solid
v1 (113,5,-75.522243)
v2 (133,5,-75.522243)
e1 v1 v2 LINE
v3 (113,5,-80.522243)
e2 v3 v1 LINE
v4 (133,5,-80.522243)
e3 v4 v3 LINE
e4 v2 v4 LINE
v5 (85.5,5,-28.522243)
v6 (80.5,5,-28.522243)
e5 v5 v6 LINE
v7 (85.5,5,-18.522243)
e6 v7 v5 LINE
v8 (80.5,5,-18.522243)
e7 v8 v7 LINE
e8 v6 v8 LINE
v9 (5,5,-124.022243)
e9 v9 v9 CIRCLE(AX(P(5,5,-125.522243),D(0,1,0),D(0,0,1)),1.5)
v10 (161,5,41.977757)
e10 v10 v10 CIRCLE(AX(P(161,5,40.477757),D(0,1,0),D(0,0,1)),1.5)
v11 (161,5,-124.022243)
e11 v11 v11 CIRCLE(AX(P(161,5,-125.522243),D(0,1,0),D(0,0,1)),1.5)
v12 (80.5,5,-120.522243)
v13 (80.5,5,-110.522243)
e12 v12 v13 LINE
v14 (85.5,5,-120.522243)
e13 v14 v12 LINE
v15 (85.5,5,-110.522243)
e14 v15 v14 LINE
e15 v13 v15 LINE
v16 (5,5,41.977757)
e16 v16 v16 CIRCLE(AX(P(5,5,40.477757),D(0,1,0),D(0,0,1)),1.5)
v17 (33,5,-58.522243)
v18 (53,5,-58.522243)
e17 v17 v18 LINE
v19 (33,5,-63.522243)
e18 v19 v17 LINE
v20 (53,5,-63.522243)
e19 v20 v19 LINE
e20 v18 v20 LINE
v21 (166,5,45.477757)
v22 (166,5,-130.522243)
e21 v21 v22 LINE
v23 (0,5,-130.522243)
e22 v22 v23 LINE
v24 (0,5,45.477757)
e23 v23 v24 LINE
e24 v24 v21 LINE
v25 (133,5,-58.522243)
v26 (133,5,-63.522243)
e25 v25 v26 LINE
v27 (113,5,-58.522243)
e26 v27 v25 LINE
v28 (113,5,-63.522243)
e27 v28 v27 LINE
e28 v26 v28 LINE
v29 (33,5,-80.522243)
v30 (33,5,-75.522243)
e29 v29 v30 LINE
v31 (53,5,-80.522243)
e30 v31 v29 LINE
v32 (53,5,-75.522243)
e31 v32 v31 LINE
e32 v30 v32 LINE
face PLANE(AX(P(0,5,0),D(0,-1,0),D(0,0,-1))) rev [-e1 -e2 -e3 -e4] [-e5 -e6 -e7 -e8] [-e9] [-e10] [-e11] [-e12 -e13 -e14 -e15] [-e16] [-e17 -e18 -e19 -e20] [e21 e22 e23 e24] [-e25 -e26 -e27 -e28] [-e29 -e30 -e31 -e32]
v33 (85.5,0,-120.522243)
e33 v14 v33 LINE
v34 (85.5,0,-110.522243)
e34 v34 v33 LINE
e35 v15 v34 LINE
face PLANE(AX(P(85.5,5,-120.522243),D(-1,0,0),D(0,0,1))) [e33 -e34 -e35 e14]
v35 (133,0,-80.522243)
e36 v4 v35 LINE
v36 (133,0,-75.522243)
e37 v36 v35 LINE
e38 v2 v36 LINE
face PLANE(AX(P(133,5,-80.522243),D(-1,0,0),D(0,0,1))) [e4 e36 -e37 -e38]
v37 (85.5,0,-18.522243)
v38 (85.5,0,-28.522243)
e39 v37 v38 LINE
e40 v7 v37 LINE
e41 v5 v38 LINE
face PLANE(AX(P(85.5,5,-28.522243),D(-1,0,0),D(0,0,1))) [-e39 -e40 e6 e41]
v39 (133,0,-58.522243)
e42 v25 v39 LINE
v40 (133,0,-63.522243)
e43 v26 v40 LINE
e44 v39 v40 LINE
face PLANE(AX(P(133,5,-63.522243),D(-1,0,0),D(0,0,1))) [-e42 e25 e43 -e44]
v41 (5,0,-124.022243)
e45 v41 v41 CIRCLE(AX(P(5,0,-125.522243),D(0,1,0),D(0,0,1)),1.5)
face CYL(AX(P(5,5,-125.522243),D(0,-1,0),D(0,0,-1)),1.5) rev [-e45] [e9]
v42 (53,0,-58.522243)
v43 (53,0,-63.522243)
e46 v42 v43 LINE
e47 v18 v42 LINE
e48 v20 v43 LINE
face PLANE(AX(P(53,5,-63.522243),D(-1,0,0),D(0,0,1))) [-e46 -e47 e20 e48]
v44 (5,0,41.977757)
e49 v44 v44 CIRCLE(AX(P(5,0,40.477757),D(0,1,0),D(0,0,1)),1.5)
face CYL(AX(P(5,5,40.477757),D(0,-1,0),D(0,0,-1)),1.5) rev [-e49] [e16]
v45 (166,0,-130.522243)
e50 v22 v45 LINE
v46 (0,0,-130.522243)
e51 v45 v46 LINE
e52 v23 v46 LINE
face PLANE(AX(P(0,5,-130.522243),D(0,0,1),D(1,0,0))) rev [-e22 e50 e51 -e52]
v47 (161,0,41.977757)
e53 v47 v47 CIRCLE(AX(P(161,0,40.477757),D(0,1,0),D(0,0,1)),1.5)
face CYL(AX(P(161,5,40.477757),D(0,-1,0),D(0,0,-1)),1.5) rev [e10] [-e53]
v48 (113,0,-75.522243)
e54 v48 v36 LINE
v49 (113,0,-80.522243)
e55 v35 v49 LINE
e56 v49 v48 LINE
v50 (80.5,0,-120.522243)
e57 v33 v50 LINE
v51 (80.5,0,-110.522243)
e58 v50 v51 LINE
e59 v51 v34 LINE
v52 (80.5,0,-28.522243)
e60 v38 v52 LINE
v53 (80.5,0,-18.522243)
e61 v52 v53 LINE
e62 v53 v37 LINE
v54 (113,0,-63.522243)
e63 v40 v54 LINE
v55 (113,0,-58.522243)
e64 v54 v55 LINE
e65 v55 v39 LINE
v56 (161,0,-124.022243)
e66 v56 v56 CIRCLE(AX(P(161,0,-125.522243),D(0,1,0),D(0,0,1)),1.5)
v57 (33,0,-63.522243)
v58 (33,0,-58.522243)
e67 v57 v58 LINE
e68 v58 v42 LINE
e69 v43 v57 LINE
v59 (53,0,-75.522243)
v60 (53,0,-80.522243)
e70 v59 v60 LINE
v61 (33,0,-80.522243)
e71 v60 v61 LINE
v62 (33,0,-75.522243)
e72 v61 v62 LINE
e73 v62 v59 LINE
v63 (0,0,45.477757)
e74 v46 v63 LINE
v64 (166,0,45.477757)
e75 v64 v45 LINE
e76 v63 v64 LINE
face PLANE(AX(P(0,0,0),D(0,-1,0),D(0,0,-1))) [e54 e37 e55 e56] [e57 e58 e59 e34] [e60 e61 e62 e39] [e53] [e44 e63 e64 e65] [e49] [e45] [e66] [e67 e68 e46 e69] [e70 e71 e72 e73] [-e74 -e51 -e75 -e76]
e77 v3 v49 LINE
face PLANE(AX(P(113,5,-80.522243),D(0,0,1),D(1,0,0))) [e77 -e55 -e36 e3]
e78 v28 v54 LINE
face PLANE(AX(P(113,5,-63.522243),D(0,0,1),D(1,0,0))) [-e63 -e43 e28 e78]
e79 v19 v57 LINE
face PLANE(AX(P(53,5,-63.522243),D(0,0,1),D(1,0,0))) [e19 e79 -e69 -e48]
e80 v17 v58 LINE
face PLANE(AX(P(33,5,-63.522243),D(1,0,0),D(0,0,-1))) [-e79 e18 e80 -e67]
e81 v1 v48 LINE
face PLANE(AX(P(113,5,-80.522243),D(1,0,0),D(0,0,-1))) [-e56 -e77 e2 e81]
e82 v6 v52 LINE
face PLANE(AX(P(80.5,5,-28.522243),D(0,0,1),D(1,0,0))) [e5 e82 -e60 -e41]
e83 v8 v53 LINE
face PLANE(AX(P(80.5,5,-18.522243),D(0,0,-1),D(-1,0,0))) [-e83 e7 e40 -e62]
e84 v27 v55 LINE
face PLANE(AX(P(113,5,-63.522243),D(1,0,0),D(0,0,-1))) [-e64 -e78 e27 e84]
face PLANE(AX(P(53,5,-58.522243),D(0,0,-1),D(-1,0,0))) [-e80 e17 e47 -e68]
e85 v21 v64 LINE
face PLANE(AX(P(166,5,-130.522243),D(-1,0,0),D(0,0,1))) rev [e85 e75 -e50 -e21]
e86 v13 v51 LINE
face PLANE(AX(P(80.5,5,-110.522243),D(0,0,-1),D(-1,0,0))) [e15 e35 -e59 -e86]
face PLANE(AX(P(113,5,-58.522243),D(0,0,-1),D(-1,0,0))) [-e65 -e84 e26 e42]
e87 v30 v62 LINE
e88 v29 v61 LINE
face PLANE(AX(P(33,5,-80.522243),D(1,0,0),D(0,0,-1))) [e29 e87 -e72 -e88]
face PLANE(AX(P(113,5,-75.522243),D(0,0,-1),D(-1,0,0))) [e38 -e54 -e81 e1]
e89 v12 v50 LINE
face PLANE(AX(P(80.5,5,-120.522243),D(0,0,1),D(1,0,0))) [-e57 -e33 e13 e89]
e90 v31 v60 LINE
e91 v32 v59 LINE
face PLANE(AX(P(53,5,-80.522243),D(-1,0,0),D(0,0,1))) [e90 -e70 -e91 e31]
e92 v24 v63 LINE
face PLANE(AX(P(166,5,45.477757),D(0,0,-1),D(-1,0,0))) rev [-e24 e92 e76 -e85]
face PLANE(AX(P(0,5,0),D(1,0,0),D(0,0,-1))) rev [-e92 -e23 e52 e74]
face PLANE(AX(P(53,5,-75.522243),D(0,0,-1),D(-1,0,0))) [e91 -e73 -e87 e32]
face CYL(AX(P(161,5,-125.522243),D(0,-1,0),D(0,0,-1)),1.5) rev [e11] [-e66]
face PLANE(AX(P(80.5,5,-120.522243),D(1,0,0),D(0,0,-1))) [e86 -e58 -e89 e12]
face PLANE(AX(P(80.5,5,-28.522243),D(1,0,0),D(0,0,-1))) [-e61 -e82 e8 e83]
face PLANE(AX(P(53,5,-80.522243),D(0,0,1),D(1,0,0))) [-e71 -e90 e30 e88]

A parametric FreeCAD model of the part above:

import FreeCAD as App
import Part
import Sketcher

V = App.Vector
Q = App.Units.Quantity


def add_polygon(sketch, points):
    """Adds a closed chain of lines whose ends are joined by coincident constraints."""
    first, n = sketch.GeometryCount, len(points)
    for a, b in zip(points, points[1:] + points[:1]):
        sketch.addGeometry(Part.LineSegment(App.Vector(*a, 0), App.Vector(*b, 0)), False)
    for i in range(n):
        sketch.addConstraint(Sketcher.Constraint("Coincident", first + i, 2, first + (i + 1) % n, 1))

doc = App.newDocument("Part")
body = doc.addObject("PartDesign::Body", "Body")

sketch1 = body.newObject("Sketcher::SketchObject", "Sketch")
sketch1.AttachmentSupport = (doc.getObject("XZ_Plane"), [""])
sketch1.MapMode = "FlatFace"
add_polygon(sketch1, [(0, -130.5), (0, 45.5), (166, 45.5), (166, -130.5)])
sketch1.addGeometry(Part.Circle(V(161, 40.5, 0), V(0, 0, 1), 1.5), False)
sketch1.addGeometry(Part.Circle(V(5, 40.5, 0), V(0, 0, 1), 1.5), False)
add_polygon(sketch1, [(80.5, -18.5), (80.5, -28.5), (85.5, -28.5), (85.5, -18.5)])
add_polygon(sketch1, [(113, -58.5), (113, -63.5), (133, -63.5), (133, -58.5)])
add_polygon(sketch1, [(113, -75.5), (113, -80.5), (133, -80.5), (133, -75.5)])
sketch1.addGeometry(Part.Circle(V(161, -125.5, 0), V(0, 0, 1), 1.5), False)
add_polygon(sketch1, [(33, -58.5), (33, -63.5), (53, -63.5), (53, -58.5)])
add_polygon(sketch1, [(33, -75.5), (33, -80.5), (53, -80.5), (53, -75.5)])
add_polygon(sketch1, [(80.5, -110.5), (80.5, -120.5), (85.5, -120.5), (85.5, -110.5)])
sketch1.addGeometry(Part.Circle(V(5, -125.5, 0), V(0, 0, 1), 1.5), False)
sketch1.addConstraint(Sketcher.Constraint("Vertical", 0))
sketch1.addConstraint(Sketcher.Constraint("Horizontal", 1))
sketch1.addConstraint(Sketcher.Constraint("Vertical", 2))
sketch1.addConstraint(Sketcher.Constraint("Horizontal", 3))
sketch1.addConstraint(Sketcher.Constraint("Vertical", 6))
sketch1.addConstraint(Sketcher.Constraint("Horizontal", 7))
sketch1.addConstraint(Sketcher.Constraint("Vertical", 8))
sketch1.addConstraint(Sketcher.Constraint("Horizontal", 9))
sketch1.addConstraint(Sketcher.Constraint("Vertical", 10))
sketch1.addConstraint(Sketcher.Constraint("Horizontal", 11))
sketch1.addConstraint(Sketcher.Constraint("Vertical", 12))
sketch1.addConstraint(Sketcher.Constraint("Horizontal", 13))
sketch1.addConstraint(Sketcher.Constraint("Vertical", 14))
sketch1.addConstraint(Sketcher.Constraint("Horizontal", 15))
sketch1.addConstraint(Sketcher.Constraint("Vertical", 16))
sketch1.addConstraint(Sketcher.Constraint("Horizontal", 17))
sketch1.addConstraint(Sketcher.Constraint("Vertical", 19))
sketch1.addConstraint(Sketcher.Constraint("Horizontal", 20))
sketch1.addConstraint(Sketcher.Constraint("Vertical", 21))
sketch1.addConstraint(Sketcher.Constraint("Horizontal", 22))
sketch1.addConstraint(Sketcher.Constraint("Vertical", 23))
sketch1.addConstraint(Sketcher.Constraint("Horizontal", 24))
sketch1.addConstraint(Sketcher.Constraint("Vertical", 25))
sketch1.addConstraint(Sketcher.Constraint("Horizontal", 26))
sketch1.addConstraint(Sketcher.Constraint("Vertical", 27))
sketch1.addConstraint(Sketcher.Constraint("Horizontal", 28))
sketch1.addConstraint(Sketcher.Constraint("Vertical", 29))
sketch1.addConstraint(Sketcher.Constraint("Horizontal", 30))
sketch1.addConstraint(Sketcher.Constraint("Equal", 4, 5))
sketch1.addConstraint(Sketcher.Constraint("Equal", 5, 18))
sketch1.addConstraint(Sketcher.Constraint("Equal", 18, 31))
sketch1.addConstraint(Sketcher.Constraint("PointOnObject", 0, 2, -2))
sketch1.addConstraint(Sketcher.Constraint("Horizontal", 4, 3, 5, 3))
sketch1.addConstraint(Sketcher.Constraint("Horizontal", 18, 3, 31, 3))
sketch1.addConstraint(Sketcher.Constraint("Horizontal", 11, 2, 19, 2))
sketch1.addConstraint(Sketcher.Constraint("Horizontal", 13, 2, 21, 2))
sketch1.addConstraint(Sketcher.Constraint("Horizontal", 15, 2, 23, 2))
sketch1.addConstraint(Sketcher.Constraint("Horizontal", 17, 2, 25, 2))
sketch1.addConstraint(Sketcher.Constraint("Vertical", 4, 3, 18, 3))
sketch1.addConstraint(Sketcher.Constraint("Vertical", 5, 3, 31, 3))
sketch1.addConstraint(Sketcher.Constraint("Vertical", 13, 2, 14, 2))
sketch1.addConstraint(Sketcher.Constraint("Vertical", 12, 2, 15, 2))
sketch1.addConstraint(Sketcher.Constraint("Vertical", 22, 2, 23, 2))
sketch1.addConstraint(Sketcher.Constraint("Vertical", 21, 2, 24, 2))
sketch1.addConstraint(Sketcher.Constraint("Vertical", 9, 2, 27, 2))
sketch1.addConstraint(Sketcher.Constraint("Vertical", 8, 2, 28, 2))
sketch1.addConstraint(Sketcher.Constraint("Equal", 17, 20))
sketch1.addConstraint(Sketcher.Constraint("Equal", 30, 10))
sketch1.addConstraint(Sketcher.Constraint("Equal", 12, 14))
sketch1.addConstraint(Sketcher.Constraint("Equal", 8, 27))
sketch1.addConstraint(Sketcher.Constraint("Diameter", 4, Q("3 mm")))
sketch1.addConstraint(Sketcher.Constraint("DistanceX", 1, 1, 1, 2, Q("166 mm")))
sketch1.addConstraint(Sketcher.Constraint("DistanceX", 7, 1, 7, 2, Q("5 mm")))
sketch1.addConstraint(Sketcher.Constraint("DistanceX", 11, 1, 11, 2, Q("20 mm")))
sketch1.addConstraint(Sketcher.Constraint("DistanceY", 0, 1, 0, 2, Q("176 mm")))
sketch1.addConstraint(Sketcher.Constraint("DistanceY", 6, 2, 6, 1, Q("10 mm")))
sketch1.addConstraint(Sketcher.Constraint("DistanceX", -1, 1, 4, 3, Q("161 mm")))
sketch1.addConstraint(Sketcher.Constraint("DistanceX", -1, 1, 5, 3, Q("5 mm")))
sketch1.addConstraint(Sketcher.Constraint("DistanceX", -1, 1, 10, 2, Q("113 mm")))
sketch1.addConstraint(Sketcher.Constraint("DistanceX", -1, 1, 19, 2, Q("33 mm")))
sketch1.addConstraint(Sketcher.Constraint("DistanceY", 18, 3, 4, 3, Q("166 mm")))
sketch1.addConstraint(Sketcher.Constraint("DistanceY", 5, 3, 0, 2, Q("5 mm")))
sketch1.addConstraint(Sketcher.Constraint("DistanceY", 6, 2, 5, 3, Q("69 mm")))
sketch1.addConstraint(Sketcher.Constraint("DistanceY", 10, 2, 7, 2, Q("35 mm")))
sketch1.addConstraint(Sketcher.Constraint("DistanceY", 14, 2, 10, 2, Q("17 mm")))
sketch1.addConstraint(Sketcher.Constraint("DistanceY", 27, 2, 24, 2, Q("40 mm")))
sketch1.addConstraint(Sketcher.Constraint("DistanceX", -1, 1, 6, 2, Q("80.5 mm")))
sketch1.addConstraint(Sketcher.Constraint("DistanceY", -1, 1, 4, 3, Q("40.477757 mm")))
pad1 = body.newObject("PartDesign::Pad", "Pad")
pad1.Profile = sketch1
pad1.Length = 5
pad1.Reversed = True

doc.recompute()
